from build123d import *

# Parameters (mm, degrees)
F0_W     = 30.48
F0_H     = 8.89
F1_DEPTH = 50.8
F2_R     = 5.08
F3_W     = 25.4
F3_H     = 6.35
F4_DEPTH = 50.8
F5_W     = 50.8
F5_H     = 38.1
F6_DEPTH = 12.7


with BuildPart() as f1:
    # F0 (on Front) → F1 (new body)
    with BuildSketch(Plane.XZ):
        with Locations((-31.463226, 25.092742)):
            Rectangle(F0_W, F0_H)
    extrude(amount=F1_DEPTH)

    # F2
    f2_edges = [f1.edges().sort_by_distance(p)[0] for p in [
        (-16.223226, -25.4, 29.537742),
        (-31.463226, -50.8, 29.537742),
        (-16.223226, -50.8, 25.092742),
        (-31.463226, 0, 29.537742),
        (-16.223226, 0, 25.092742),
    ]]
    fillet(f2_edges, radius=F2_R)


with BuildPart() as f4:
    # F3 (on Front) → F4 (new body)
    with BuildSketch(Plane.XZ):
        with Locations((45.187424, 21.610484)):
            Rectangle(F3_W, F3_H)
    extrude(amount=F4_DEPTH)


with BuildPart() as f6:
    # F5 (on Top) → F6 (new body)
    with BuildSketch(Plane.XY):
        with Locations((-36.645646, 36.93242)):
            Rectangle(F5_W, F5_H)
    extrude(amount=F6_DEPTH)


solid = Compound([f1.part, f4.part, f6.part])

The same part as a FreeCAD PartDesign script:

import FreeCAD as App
import Part
import Sketcher

V = App.Vector
Q = App.Units.Quantity


def edges_at(feature, points):
    """Names of the edges that pass closest to the given points."""
    edges = feature.Shape.Edges
    near = lambda p: min(range(len(edges)), key=lambda i: edges[i].distToShape(Part.Vertex(*p))[0])
    return sorted({f"Edge{near(p) + 1}" for p in points})

doc = App.newDocument("Part")
body = doc.addObject("PartDesign::Body", "Body")

# Sketch on XZ plane
sketch1 = body.newObject("Sketcher::SketchObject", "Sketch")
sketch1.AttachmentSupport = (doc.getObject("XZ_Plane"), [""])
sketch1.MapMode = "FlatFace"
sketch1.addGeometry(Part.LineSegment(V(-47, 30, 0), V(-47, 21, 0)), False)
sketch1.addGeometry(Part.LineSegment(V(-47, 21, 0), V(-16, 21, 0)), False)
sketch1.addGeometry(Part.LineSegment(V(-16, 21, 0), V(-16, 30, 0)), False)
sketch1.addGeometry(Part.LineSegment(V(-16, 30, 0), V(-47, 30, 0)), False)
sketch1.addConstraint(Sketcher.Constraint("Coincident", 0, 2, 1, 1))
sketch1.addConstraint(Sketcher.Constraint("Coincident", 1, 2, 2, 1))
sketch1.addConstraint(Sketcher.Constraint("Coincident", 2, 2, 3, 1))
sketch1.addConstraint(Sketcher.Constraint("Coincident", 3, 2, 0, 1))
sketch1.addConstraint(Sketcher.Constraint("Vertical", 0))
sketch1.addConstraint(Sketcher.Constraint("Horizontal", 1))
sketch1.addConstraint(Sketcher.Constraint("Vertical", 2))
sketch1.addConstraint(Sketcher.Constraint("Horizontal", 3))
sketch1.addConstraint(Sketcher.Constraint("DistanceX", 1, 1, 1, 2, Q("1.2 in")))
sketch1.addConstraint(Sketcher.Constraint("DistanceY", 0, 2, 0, 1, Q("0.35 in")))
sketch1.addConstraint(Sketcher.Constraint("DistanceX", 0, 2, -1, 1, Q("46.703226 mm")))
sketch1.addConstraint(Sketcher.Constraint("DistanceY", -1, 1, 0, 2, Q("20.647742 mm")))
pad1 = body.newObject("PartDesign::Pad", "Pad")
pad1.Profile = sketch1
pad1.Length = Q("2 in")
doc.recompute()

fillet = body.newObject("PartDesign::Fillet", "Fillet")
fillet.Base = (pad1, edges_at(pad1, [
    (-16.223, -25.4, 29.538),
    (-31.463, -50.8, 29.538),
    (-16.223, -50.8, 25.093),
    (-31.463, 0, 29.538),
    (-16.223, 0, 25.093),
]))
fillet.Radius = Q("0.2 in")
body2 = doc.addObject("PartDesign::Body", "Body001")

# Sketch on XZ plane
sketch2 = body2.newObject("Sketcher::SketchObject", "Sketch001")
sketch2.AttachmentSupport = (doc.getObject("XZ_Plane001"), [""])
sketch2.MapMode = "FlatFace"
sketch2.addGeometry(Part.LineSegment(V(32, 25, 0), V(32, 18, 0)), False)
sketch2.addGeometry(Part.LineSegment(V(32, 18, 0), V(58, 18, 0)), False)
sketch2.addGeometry(Part.LineSegment(V(58, 18, 0), V(58, 25, 0)), False)
sketch2.addGeometry(Part.LineSegment(V(58, 25, 0), V(32, 25, 0)), False)
sketch2.addConstraint(Sketcher.Constraint("Coincident", 0, 2, 1, 1))
sketch2.addConstraint(Sketcher.Constraint("Coincident", 1, 2, 2, 1))
sketch2.addConstraint(Sketcher.Constraint("Coincident", 2, 2, 3, 1))
sketch2.addConstraint(Sketcher.Constraint("Coincident", 3, 2, 0, 1))
sketch2.addConstraint(Sketcher.Constraint("Vertical", 0))
sketch2.addConstraint(Sketcher.Constraint("Horizontal", 1))
sketch2.addConstraint(Sketcher.Constraint("Vertical", 2))
sketch2.addConstraint(Sketcher.Constraint("Horizontal", 3))
sketch2.addConstraint(Sketcher.Constraint("DistanceX", 1, 1, 1, 2, Q("1 in")))
sketch2.addConstraint(Sketcher.Constraint("DistanceY", 0, 2, 0, 1, Q("0.25 in")))
sketch2.addConstraint(Sketcher.Constraint("DistanceX", -1, 1, 0, 2, Q("32.487424 mm")))
sketch2.addConstraint(Sketcher.Constraint("DistanceY", -1, 1, 0, 2, Q("18.435484 mm")))
pad2 = body2.newObject("PartDesign::Pad", "Pad001")
pad2.Profile = sketch2
pad2.Length = Q("2 in")
body3 = doc.addObject("PartDesign::Body", "Body002")

# Sketch on XY plane
sketch3 = body3.newObject("Sketcher::SketchObject", "Sketch002")
sketch3.AttachmentSupport = (doc.getObject("XY_Plane002"), [""])
sketch3.MapMode = "FlatFace"
sketch3.addGeometry(Part.LineSegment(V(-62, 56, 0), V(-62, 18, 0)), False)
sketch3.addGeometry(Part.LineSegment(V(-62, 18, 0), V(-11, 18, 0)), False)
sketch3.addGeometry(Part.LineSegment(V(-11, 18, 0), V(-11, 56, 0)), False)
sketch3.addGeometry(Part.LineSegment(V(-11, 56, 0), V(-62, 56, 0)), False)
sketch3.addConstraint(Sketcher.Constraint("Coincident", 0, 2, 1, 1))
sketch3.addConstraint(Sketcher.Constraint("Coincident", 1, 2, 2, 1))
sketch3.addConstraint(Sketcher.Constraint("Coincident", 2, 2, 3, 1))
sketch3.addConstraint(Sketcher.Constraint("Coincident", 3, 2, 0, 1))
sketch3.addConstraint(Sketcher.Constraint("Vertical", 0))
sketch3.addConstraint(Sketcher.Constraint("Horizontal", 1))
sketch3.addConstraint(Sketcher.Constraint("Vertical", 2))
sketch3.addConstraint(Sketcher.Constraint("Horizontal", 3))
sketch3.addConstraint(Sketcher.Constraint("DistanceX", 1, 1, 1, 2, Q("2 in")))
sketch3.addConstraint(Sketcher.Constraint("DistanceY", 0, 2, 0, 1, Q("1.5 in")))
sketch3.addConstraint(Sketcher.Constraint("DistanceY", -1, 1, 0, 2, Q("17.88242 mm")))
sketch3.addConstraint(Sketcher.Constraint("DistanceX", 0, 2, -1, 1, Q("62.045646 mm")))
pad3 = body3.newObject("PartDesign::Pad", "Pad002")
pad3.Profile = sketch3
pad3.Length = Q("0.5 in")

doc.recompute()
